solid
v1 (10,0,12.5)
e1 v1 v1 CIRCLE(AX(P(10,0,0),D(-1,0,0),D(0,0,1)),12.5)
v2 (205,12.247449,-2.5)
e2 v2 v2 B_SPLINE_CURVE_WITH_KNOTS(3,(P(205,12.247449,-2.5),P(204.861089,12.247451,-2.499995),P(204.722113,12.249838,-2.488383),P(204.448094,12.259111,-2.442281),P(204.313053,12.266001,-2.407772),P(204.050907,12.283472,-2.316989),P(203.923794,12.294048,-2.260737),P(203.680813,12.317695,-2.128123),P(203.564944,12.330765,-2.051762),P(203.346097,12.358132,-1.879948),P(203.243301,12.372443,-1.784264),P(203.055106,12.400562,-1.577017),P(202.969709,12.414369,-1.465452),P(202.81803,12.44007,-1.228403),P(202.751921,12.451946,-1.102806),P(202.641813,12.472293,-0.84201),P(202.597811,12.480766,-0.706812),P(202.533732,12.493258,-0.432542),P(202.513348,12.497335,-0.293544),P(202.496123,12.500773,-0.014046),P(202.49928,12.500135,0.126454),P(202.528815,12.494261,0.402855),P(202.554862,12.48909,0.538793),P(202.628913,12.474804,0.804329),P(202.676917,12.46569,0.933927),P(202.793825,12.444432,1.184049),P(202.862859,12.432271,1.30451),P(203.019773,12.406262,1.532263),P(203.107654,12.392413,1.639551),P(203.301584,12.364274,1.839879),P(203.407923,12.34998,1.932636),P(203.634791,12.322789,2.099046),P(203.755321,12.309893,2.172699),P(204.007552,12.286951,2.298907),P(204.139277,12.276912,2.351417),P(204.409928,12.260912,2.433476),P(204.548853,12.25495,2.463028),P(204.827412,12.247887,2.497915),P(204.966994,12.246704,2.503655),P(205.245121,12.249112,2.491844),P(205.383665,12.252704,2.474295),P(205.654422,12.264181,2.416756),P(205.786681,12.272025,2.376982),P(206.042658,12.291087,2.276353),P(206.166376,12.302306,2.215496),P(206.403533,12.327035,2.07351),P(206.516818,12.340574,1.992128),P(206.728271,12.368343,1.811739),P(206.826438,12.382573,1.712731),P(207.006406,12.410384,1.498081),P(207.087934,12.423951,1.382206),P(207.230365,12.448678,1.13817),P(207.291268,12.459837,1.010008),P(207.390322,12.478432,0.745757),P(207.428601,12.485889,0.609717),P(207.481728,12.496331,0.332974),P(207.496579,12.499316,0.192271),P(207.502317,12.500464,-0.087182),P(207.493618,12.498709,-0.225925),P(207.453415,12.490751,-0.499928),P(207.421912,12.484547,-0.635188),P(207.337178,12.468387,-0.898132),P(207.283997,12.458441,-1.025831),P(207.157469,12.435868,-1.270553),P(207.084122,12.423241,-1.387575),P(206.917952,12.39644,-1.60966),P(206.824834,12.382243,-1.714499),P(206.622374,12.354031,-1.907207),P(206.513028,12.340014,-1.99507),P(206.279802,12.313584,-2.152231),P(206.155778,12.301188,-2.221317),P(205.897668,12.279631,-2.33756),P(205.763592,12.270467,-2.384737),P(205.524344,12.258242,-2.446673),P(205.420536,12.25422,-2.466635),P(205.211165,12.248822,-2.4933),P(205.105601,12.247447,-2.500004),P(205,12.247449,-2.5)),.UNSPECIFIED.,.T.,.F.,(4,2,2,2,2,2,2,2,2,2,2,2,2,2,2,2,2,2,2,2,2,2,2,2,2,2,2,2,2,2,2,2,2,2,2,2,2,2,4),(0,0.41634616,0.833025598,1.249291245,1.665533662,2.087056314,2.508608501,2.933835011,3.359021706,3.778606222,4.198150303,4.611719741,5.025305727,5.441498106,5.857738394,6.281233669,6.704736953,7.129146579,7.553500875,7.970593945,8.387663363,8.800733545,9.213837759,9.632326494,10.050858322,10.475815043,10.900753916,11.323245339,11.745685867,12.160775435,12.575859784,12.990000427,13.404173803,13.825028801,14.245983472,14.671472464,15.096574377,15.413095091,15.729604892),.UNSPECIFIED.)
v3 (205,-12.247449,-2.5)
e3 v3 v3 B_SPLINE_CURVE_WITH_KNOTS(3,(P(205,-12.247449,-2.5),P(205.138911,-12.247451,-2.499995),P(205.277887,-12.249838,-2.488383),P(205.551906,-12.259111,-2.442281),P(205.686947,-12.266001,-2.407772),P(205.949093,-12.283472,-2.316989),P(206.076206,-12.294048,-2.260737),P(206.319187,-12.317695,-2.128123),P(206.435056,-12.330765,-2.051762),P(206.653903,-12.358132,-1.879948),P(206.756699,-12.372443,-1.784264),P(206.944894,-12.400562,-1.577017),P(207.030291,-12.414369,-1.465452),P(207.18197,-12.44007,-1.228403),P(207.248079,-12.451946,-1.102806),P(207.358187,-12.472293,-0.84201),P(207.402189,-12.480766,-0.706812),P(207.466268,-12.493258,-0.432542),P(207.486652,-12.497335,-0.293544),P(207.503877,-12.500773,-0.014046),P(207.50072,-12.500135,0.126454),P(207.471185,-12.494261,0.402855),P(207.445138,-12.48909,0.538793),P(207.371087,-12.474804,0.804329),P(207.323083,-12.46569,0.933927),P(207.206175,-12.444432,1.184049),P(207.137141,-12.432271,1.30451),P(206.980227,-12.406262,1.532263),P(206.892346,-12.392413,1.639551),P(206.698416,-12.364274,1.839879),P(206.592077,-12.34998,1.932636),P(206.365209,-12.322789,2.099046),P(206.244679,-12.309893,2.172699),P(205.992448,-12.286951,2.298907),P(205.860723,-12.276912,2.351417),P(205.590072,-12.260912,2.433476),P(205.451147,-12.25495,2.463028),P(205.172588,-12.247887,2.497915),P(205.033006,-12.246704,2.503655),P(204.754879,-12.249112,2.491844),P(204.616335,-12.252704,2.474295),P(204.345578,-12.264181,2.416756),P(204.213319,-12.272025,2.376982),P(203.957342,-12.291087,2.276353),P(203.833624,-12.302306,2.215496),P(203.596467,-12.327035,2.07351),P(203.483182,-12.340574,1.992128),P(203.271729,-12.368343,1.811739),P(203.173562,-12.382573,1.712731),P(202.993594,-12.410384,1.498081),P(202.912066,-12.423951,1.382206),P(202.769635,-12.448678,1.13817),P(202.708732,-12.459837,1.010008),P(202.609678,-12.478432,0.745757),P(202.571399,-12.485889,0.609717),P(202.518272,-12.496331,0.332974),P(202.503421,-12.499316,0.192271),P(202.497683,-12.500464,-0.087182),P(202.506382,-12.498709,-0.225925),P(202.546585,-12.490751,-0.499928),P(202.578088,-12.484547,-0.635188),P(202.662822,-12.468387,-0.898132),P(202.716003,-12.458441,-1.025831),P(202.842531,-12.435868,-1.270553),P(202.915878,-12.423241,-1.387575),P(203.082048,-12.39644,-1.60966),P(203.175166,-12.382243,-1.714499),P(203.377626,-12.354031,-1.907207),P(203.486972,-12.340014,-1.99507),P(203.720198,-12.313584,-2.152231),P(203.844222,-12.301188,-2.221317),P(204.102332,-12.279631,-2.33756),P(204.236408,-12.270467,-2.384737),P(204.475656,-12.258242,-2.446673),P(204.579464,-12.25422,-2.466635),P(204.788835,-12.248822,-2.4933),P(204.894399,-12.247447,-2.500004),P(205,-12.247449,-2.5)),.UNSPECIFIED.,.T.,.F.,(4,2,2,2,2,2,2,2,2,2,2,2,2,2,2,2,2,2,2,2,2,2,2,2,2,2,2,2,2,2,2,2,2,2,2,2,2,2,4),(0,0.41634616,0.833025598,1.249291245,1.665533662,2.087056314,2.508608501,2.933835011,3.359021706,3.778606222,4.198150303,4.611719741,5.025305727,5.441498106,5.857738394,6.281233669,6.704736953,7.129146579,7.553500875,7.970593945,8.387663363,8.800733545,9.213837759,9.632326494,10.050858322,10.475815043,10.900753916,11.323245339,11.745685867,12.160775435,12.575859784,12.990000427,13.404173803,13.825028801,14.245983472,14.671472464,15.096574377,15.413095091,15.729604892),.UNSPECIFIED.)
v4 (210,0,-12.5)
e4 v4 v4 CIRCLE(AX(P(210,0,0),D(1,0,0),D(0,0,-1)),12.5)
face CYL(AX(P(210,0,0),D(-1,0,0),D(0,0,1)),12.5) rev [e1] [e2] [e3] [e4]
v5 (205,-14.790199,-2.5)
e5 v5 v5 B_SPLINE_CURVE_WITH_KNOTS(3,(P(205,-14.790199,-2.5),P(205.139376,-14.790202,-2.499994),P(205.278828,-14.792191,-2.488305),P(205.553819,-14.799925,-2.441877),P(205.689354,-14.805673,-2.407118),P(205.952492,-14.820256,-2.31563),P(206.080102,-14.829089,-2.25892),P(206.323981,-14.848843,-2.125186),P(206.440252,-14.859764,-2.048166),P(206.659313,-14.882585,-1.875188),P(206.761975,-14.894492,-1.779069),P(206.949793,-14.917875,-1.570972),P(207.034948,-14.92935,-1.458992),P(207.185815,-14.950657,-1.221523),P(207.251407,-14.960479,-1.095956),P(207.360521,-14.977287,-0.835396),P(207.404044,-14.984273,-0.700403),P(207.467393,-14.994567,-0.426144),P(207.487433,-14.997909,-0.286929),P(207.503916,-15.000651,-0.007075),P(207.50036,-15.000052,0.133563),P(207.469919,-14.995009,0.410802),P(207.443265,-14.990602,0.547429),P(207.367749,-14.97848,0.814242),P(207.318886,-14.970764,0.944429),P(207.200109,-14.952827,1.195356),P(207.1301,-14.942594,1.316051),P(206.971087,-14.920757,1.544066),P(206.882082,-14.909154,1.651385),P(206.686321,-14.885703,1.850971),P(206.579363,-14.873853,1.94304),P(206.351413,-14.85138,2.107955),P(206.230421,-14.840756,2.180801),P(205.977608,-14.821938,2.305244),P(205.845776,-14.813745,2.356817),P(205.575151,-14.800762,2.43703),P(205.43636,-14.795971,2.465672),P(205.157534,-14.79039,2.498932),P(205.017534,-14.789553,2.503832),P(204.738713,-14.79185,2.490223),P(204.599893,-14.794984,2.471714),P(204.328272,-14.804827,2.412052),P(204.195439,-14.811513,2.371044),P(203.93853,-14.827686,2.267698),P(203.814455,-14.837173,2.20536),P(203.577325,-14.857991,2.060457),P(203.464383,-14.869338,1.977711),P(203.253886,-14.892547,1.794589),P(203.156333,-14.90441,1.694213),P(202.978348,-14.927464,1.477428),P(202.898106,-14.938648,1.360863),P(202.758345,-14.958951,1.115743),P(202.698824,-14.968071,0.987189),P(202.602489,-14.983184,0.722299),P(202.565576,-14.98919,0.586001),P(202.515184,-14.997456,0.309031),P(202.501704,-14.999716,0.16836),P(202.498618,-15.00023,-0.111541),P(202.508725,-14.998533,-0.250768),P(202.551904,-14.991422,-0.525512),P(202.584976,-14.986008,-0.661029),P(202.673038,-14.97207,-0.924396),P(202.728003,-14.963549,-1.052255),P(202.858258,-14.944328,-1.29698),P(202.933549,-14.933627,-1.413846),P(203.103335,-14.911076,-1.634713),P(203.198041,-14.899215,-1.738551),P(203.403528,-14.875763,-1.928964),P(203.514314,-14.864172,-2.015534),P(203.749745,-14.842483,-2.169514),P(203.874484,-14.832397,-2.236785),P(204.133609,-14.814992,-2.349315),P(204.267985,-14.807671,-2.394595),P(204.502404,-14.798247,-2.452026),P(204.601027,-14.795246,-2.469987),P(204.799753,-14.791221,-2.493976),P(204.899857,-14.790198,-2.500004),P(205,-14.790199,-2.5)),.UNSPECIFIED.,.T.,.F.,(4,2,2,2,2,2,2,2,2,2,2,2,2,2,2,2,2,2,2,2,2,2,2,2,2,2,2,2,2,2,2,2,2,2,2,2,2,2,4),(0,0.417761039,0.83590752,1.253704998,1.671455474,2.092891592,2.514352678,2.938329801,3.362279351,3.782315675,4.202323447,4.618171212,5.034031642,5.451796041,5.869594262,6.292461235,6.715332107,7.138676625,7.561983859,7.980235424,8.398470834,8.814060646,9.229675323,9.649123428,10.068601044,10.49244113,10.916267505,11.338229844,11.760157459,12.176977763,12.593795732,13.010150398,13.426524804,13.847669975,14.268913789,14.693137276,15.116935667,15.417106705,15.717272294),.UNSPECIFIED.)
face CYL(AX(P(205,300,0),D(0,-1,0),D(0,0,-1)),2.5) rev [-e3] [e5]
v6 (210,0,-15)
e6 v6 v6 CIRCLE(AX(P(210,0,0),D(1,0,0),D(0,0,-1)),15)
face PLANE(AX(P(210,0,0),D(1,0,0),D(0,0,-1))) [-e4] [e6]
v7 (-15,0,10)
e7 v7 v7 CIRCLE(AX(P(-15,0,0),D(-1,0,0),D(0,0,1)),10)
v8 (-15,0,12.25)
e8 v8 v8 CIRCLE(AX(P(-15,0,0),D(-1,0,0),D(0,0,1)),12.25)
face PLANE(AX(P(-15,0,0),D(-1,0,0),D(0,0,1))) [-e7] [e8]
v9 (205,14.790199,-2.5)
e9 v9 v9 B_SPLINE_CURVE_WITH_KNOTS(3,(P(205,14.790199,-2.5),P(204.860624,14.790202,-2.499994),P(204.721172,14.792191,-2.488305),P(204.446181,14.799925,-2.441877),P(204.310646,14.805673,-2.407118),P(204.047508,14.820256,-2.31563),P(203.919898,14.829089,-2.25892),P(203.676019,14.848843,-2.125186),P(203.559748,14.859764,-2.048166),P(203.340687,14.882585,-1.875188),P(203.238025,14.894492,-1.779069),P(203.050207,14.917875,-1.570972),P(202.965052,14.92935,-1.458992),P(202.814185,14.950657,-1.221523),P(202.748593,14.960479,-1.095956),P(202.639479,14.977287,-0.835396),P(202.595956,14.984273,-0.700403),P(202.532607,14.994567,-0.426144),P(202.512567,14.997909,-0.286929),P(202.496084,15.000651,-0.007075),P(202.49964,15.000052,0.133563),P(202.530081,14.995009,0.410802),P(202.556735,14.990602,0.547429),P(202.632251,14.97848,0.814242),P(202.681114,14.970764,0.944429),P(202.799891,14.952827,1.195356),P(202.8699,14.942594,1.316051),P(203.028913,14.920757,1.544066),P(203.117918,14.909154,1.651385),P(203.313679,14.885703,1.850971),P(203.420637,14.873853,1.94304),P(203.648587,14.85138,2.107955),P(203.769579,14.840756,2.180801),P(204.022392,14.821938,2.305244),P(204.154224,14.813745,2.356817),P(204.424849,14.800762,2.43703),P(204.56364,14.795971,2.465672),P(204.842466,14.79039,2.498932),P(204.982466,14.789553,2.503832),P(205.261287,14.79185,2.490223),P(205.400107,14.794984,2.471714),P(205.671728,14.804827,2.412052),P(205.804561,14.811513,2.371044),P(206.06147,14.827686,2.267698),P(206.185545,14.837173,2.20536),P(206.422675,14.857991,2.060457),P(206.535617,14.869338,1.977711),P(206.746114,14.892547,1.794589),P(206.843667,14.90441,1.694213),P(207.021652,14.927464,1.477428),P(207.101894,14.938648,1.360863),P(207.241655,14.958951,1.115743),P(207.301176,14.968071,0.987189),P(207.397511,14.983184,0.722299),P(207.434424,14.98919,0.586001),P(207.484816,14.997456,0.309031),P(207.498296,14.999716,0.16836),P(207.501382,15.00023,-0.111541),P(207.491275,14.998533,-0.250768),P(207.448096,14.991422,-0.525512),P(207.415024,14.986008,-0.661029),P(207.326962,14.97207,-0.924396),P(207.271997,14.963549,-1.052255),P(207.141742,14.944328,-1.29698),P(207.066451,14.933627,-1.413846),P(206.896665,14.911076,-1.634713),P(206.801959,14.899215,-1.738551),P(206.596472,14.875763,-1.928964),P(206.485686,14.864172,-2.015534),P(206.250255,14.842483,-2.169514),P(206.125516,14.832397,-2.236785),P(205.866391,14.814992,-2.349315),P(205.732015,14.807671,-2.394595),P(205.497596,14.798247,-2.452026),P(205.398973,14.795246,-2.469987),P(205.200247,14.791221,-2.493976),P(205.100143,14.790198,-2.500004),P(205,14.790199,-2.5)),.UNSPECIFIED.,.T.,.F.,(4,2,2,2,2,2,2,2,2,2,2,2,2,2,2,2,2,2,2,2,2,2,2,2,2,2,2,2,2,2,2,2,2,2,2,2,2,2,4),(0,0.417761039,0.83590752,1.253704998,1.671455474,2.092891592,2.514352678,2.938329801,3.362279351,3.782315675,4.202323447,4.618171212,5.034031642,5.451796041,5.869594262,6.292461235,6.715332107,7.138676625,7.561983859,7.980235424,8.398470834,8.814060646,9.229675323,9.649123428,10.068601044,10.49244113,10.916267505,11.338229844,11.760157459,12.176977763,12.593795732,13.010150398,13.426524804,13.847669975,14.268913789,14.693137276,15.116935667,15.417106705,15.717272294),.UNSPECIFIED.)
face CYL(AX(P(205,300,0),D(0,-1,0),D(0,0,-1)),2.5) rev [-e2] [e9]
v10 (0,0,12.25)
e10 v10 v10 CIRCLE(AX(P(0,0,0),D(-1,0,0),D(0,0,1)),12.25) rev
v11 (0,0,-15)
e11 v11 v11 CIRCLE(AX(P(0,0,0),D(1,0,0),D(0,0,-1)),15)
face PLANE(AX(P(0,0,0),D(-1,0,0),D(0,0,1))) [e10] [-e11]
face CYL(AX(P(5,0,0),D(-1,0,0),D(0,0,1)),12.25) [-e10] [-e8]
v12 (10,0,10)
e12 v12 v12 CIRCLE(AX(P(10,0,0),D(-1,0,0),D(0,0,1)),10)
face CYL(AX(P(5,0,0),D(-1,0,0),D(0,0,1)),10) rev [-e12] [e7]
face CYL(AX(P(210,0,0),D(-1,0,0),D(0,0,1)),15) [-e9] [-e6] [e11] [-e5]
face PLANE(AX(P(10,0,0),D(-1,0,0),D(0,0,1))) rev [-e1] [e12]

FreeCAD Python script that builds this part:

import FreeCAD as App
import Part
import Sketcher

doc = App.newDocument("Part")
params = doc.addObject("Spreadsheet::Sheet", "Params")
for row, (alias, value) in enumerate([
    ("sketch1_diameter", "30 mm"),
    ("sketch1_diameter2", "25 mm"),
    ("pad1_length", "210 mm"),
    ("sketch2_diameter", "5 mm"),
    ("sketch3_diameter", "20 mm"),
    ("sketch3_diameter2", "24.5 mm"),
    ("pad2_length", "20 mm"),
    ("sketch4_diameter", "25 mm"),
    ("pad3_length", "10 mm"),
    ("sketch5_diameter", "20 mm"),
    ("pocket2_length", "20 mm"),
    ("sketch6_diameter", "25 mm"),
    ("pad4_length", "10 mm"),
    ("sketch7_diameter", "20 mm"),
    ("pocket3_length", "20 mm"),
], start=1):
    params.set(f"A{row}", alias)
    params.set(f"B{row}", "=" + value)
    params.setAlias(f"B{row}", alias)

body = doc.addObject("PartDesign::Body", "Body")

# Sketch on YZ plane
sketch1 = body.newObject("Sketcher::SketchObject", "Sketch")
sketch1.AttachmentSupport = (doc.getObject("YZ_Plane"), [""])
sketch1.MapMode = "FlatFace"
sketch1.addGeometry([
    Part.Circle(App.Vector(0, 0, 0), App.Vector(0, 0, 1), 15),
    Part.Circle(App.Vector(0, 0, 0), App.Vector(0, 0, 1), 12),
], False)
sketch1.addConstraint([
    Sketcher.Constraint("Coincident", 0, 3, -1, 1),
    Sketcher.Constraint("Coincident", 1, 3, -1, 1),
    Sketcher.Constraint("Diameter", 0, 30.0),
    Sketcher.Constraint("Diameter", 1, 25.0),
])
sketch1.setExpression("Constraints[2]", "Params.sketch1_diameter")
sketch1.setExpression("Constraints[3]", "Params.sketch1_diameter2")
pad1 = body.newObject("PartDesign::Pad", "Pad")
pad1.Profile = sketch1
pad1.setExpression("Length", "Params.pad1_length")

# Sketch on XZ plane
sketch2 = body.newObject("Sketcher::SketchObject", "Sketch001")
sketch2.AttachmentSupport = (doc.getObject("XZ_Plane"), [""])
sketch2.MapMode = "FlatFace"
sketch2.addGeometry(Part.Circle(App.Vector(205, 0, 0), App.Vector(0, 0, 1), 2.5), False)
sketch2.addConstraint([
    Sketcher.Constraint("PointOnObject", 0, 3, -1),
    Sketcher.Constraint("Diameter", 0, 5.0),
    Sketcher.Constraint("DistanceX", -1, 1, 0, 3, 205.0),
])
sketch2.setExpression("Constraints[1]", "Params.sketch2_diameter")
pocket1 = body.newObject("PartDesign::Pocket", "Pocket")
pocket1.Profile = sketch2
pocket1.Type = "ThroughAll"
pocket1.Midplane = True
body2 = doc.addObject("PartDesign::Body", "Body001")

# Sketch on YZ plane
sketch3 = body2.newObject("Sketcher::SketchObject", "Sketch002")
sketch3.AttachmentSupport = (doc.getObject("YZ_Plane001"), [""])
sketch3.MapMode = "FlatFace"
sketch3.AttachmentOffset = App.Placement(App.Vector(0, 0, -15), App.Rotation())
sketch3.addGeometry([
    Part.Circle(App.Vector(0, 0, 0), App.Vector(0, 0, 1), 12),
    Part.Circle(App.Vector(0, 0, 0), App.Vector(0, 0, 1), 10),
], False)
sketch3.addConstraint([
    Sketcher.Constraint("Coincident", 0, 3, -1, 1),
    Sketcher.Constraint("Coincident", 1, 3, -1, 1),
    Sketcher.Constraint("Diameter", 1, 20.0),
    Sketcher.Constraint("Diameter", 0, 24.5),
])
sketch3.setExpression("Constraints[2]", "Params.sketch3_diameter")
sketch3.setExpression("Constraints[3]", "Params.sketch3_diameter2")
pad2 = body2.newObject("PartDesign::Pad", "Pad001")
pad2.Profile = sketch3
pad2.setExpression("Length", "Params.pad2_length")
body.AllowCompound = True
doc.recompute()

boolean = body.newObject("PartDesign::Boolean", "Boolean")
boolean.Type = "Fuse"
boolean.addObjects([body2])

# Sketch on YZ plane
sketch4 = body.newObject("Sketcher::SketchObject", "Sketch003")
sketch4.AttachmentSupport = (doc.getObject("YZ_Plane"), [""])
sketch4.MapMode = "FlatFace"
sketch4.addGeometry(Part.Circle(App.Vector(0, 0, 0), App.Vector(0, 0, 1), 12), False)
sketch4.addConstraint([
    Sketcher.Constraint("Coincident", 0, 3, -1, 1),
    Sketcher.Constraint("Diameter", 0, 25.0),
])
sketch4.setExpression("Constraints[1]", "Params.sketch4_diameter")
pad3 = body.newObject("PartDesign::Pad", "Pad002")
pad3.Profile = sketch4
pad3.setExpression("Length", "Params.pad3_length")

# Sketch on YZ plane
sketch5 = body.newObject("Sketcher::SketchObject", "Sketch004")
sketch5.AttachmentSupport = (doc.getObject("YZ_Plane"), [""])
sketch5.MapMode = "FlatFace"
sketch5.addGeometry(Part.Circle(App.Vector(0, 0, 0), App.Vector(0, 0, 1), 10), False)
sketch5.addConstraint([
    Sketcher.Constraint("Coincident", 0, 3, -1, 1),
    Sketcher.Constraint("Diameter", 0, 20.0),
])
sketch5.setExpression("Constraints[1]", "Params.sketch5_diameter")
pocket2 = body.newObject("PartDesign::Pocket", "Pocket001")
pocket2.Profile = sketch5
pocket2.setExpression("Length", "Params.pocket2_length")
pocket2.Reversed = True

# Sketch on YZ plane
sketch6 = body.newObject("Sketcher::SketchObject", "Sketch005")
sketch6.AttachmentSupport = (doc.getObject("YZ_Plane"), [""])
sketch6.MapMode = "FlatFace"
sketch6.addGeometry(Part.Circle(App.Vector(0, 0, 0), App.Vector(0, 0, 1), 12), False)
sketch6.addConstraint([
    Sketcher.Constraint("Coincident", 0, 3, -1, 1),
    Sketcher.Constraint("Diameter", 0, 25.0),
])
sketch6.setExpression("Constraints[1]", "Params.sketch6_diameter")
pad4 = body.newObject("PartDesign::Pad", "Pad003")
pad4.Profile = sketch6
pad4.setExpression("Length", "Params.pad4_length")

# Sketch on YZ plane
sketch7 = body.newObject("Sketcher::SketchObject", "Sketch006")
sketch7.AttachmentSupport = (doc.getObject("YZ_Plane"), [""])
sketch7.MapMode = "FlatFace"
sketch7.addGeometry(Part.Circle(App.Vector(0, 0, 0), App.Vector(0, 0, 1), 10), False)
sketch7.addConstraint([
    Sketcher.Constraint("Coincident", 0, 3, -1, 1),
    Sketcher.Constraint("Diameter", 0, 20.0),
])
sketch7.setExpression("Constraints[1]", "Params.sketch7_diameter")
pocket3 = body.newObject("PartDesign::Pocket", "Pocket002")
pocket3.Profile = sketch7
pocket3.setExpression("Length", "Params.pocket3_length")
pocket3.Reversed = True

doc.recompute()
